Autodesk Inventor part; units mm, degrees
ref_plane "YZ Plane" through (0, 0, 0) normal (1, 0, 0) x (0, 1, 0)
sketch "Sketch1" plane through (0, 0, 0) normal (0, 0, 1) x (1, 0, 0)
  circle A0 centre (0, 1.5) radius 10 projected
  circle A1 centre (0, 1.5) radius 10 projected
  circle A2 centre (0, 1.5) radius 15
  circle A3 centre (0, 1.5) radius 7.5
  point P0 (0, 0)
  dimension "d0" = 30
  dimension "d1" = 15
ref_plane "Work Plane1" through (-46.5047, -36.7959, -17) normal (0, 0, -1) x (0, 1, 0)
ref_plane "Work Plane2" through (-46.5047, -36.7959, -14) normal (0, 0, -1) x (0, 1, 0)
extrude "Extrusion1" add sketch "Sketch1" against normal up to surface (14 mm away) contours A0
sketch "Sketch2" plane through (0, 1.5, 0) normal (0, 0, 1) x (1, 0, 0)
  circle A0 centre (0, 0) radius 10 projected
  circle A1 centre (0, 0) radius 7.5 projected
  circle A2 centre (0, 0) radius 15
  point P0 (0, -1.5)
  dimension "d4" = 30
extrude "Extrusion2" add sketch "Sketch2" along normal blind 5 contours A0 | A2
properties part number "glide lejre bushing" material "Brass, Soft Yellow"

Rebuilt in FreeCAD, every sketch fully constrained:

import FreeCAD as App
import Part
import Sketcher
from FreeCAD import Vector
Q = App.Units.Quantity

doc = App.newDocument("Part")
body = doc.addObject("PartDesign::Body", "Body")

sketch1 = body.newObject("Sketcher::SketchObject", "Sketch")
sketch1.AttachmentSupport = (doc.getObject("XY_Plane"), [""])
sketch1.MapMode = "FlatFace"
sketch1.addGeometry([
    Part.Circle(Vector(0, 2, 0), Vector(0, 0, 1), 10),
    Part.Circle(Vector(0, 2, 0), Vector(0, 0, 1), 8),
], False)
sketch1.addConstraint([
    Sketcher.Constraint("Coincident", 1, 3, 0, 3),
    Sketcher.Constraint("PointOnObject", 0, 3, -2),
    Sketcher.Constraint("Diameter", 1, Q("15 mm")),
    Sketcher.Constraint("Diameter", 0, Q("20 mm")),
    Sketcher.Constraint("DistanceY", -1, 1, 0, 3, Q("1.5 mm")),
])
pad1 = body.newObject("PartDesign::Pad", "Pad")
pad1.Profile = sketch1
pad1.Length = 14
pad1.Reversed = True

sketch2 = body.newObject("Sketcher::SketchObject", "Sketch001")
sketch2.AttachmentSupport = (doc.getObject("XY_Plane"), [""])
sketch2.MapMode = "FlatFace"
sketch2.addGeometry([
    Part.Circle(Vector(0, 2, 0), Vector(0, 0, 1), 15),
    Part.Circle(Vector(0, 2, 0), Vector(0, 0, 1), 8),
], False)
sketch2.addConstraint([
    Sketcher.Constraint("Coincident", 1, 3, 0, 3),
    Sketcher.Constraint("PointOnObject", 0, 3, -2),
    Sketcher.Constraint("Diameter", 0, Q("30 mm")),
    Sketcher.Constraint("Diameter", 1, Q("15 mm")),
    Sketcher.Constraint("DistanceY", -1, 1, 0, 3, Q("1.5 mm")),
])
pad2 = body.newObject("PartDesign::Pad", "Pad001")
pad2.Profile = sketch2
pad2.Length = 5

doc.recompute()
